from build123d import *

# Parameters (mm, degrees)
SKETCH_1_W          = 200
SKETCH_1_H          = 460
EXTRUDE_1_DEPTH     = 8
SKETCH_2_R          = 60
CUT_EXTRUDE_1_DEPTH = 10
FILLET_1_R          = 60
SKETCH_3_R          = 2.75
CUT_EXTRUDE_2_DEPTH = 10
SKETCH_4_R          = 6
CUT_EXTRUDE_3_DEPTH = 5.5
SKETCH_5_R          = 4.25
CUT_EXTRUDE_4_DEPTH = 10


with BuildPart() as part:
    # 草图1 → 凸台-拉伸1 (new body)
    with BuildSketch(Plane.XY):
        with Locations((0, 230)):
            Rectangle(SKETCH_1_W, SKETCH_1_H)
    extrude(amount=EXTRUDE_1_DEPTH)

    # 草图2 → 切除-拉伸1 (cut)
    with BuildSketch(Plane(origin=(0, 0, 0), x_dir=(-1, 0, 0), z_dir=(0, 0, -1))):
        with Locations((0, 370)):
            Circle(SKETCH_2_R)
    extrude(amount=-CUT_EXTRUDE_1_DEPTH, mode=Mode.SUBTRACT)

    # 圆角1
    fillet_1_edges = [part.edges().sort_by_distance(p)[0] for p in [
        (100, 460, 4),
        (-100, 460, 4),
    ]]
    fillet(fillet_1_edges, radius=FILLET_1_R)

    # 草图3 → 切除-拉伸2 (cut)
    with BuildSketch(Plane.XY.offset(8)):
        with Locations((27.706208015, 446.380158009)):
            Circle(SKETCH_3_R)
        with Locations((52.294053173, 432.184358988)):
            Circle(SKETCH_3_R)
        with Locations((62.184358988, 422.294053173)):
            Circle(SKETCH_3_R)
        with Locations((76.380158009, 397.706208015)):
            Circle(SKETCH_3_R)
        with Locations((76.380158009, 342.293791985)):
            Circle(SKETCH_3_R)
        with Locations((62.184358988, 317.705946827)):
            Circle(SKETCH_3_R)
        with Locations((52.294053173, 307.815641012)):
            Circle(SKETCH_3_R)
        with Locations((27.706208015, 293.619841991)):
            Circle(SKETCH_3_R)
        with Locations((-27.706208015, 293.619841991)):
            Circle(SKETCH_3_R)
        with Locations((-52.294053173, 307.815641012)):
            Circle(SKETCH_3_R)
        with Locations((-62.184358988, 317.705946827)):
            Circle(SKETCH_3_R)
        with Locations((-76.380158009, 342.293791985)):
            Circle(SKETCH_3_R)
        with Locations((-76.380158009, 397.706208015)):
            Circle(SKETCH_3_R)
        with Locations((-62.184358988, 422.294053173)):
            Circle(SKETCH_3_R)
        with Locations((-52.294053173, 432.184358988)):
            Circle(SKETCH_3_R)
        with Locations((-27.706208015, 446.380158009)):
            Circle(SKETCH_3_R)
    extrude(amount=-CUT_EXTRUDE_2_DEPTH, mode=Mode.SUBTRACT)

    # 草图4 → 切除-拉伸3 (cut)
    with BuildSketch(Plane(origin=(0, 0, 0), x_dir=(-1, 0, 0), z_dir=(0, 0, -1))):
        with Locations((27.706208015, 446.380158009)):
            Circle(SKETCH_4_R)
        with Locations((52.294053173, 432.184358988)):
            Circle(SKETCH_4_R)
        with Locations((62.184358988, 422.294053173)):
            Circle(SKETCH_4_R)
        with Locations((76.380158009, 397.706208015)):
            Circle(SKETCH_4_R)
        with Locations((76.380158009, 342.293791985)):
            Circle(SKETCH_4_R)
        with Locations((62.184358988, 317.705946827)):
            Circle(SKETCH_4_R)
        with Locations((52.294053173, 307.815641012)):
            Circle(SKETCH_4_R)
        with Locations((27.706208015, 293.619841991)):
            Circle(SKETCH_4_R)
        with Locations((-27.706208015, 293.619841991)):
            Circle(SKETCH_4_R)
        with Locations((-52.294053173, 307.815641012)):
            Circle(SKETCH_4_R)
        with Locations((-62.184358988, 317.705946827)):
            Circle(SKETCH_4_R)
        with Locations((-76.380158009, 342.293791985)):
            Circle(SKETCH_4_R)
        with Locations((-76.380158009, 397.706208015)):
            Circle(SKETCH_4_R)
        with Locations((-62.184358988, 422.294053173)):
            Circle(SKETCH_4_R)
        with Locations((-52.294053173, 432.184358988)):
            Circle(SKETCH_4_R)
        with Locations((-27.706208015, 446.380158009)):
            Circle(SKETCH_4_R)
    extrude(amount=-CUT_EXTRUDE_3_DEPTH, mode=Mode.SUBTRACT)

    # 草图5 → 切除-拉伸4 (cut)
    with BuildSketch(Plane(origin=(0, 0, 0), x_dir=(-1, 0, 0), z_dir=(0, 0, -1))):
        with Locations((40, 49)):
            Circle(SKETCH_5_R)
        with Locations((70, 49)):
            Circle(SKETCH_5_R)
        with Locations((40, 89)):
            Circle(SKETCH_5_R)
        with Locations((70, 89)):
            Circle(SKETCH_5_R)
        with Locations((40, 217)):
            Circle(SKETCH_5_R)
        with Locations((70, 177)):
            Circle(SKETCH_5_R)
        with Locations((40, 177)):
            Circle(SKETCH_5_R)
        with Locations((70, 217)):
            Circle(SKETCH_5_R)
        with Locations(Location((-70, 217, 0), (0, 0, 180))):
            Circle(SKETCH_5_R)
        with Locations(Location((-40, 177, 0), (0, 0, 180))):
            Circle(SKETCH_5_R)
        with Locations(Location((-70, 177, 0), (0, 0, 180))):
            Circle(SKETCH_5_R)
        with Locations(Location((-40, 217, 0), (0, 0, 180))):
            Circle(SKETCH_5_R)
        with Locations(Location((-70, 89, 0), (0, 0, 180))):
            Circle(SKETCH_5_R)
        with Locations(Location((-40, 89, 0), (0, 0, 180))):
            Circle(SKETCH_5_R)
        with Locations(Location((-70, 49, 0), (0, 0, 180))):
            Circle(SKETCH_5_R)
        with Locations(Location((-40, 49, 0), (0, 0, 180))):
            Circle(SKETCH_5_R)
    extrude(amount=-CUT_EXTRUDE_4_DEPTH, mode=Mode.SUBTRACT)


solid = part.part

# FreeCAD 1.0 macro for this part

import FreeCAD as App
import Part
import Sketcher

V = App.Vector
Q = App.Units.Quantity


def edges_at(feature, points):
    """Names of the edges that pass closest to the given points."""
    edges = feature.Shape.Edges
    near = lambda p: min(range(len(edges)), key=lambda i: edges[i].distToShape(Part.Vertex(*p))[0])
    return sorted({f"Edge{near(p) + 1}" for p in points})

doc = App.newDocument("Part")
body = doc.addObject("PartDesign::Body", "Body")

# Sketch on XY plane
sketch1 = body.newObject("Sketcher::SketchObject", "Sketch")
sketch1.AttachmentSupport = (doc.getObject("XY_Plane"), [""])
sketch1.MapMode = "FlatFace"
sketch1.addGeometry([
    Part.LineSegment(V(-100, 460, 0), V(-100, 0, 0)),
    Part.LineSegment(V(-100, 0, 0), V(100, 0, 0)),
    Part.LineSegment(V(100, 0, 0), V(100, 460, 0)),
    Part.LineSegment(V(100, 460, 0), V(-100, 460, 0)),
], False)
sketch1.addConstraint([
    Sketcher.Constraint("Coincident", 0, 2, 1, 1),
    Sketcher.Constraint("Coincident", 1, 2, 2, 1),
    Sketcher.Constraint("Coincident", 2, 2, 3, 1),
    Sketcher.Constraint("Coincident", 3, 2, 0, 1),
    Sketcher.Constraint("Vertical", 0),
    Sketcher.Constraint("Horizontal", 1),
    Sketcher.Constraint("Vertical", 2),
    Sketcher.Constraint("Horizontal", 3),
    Sketcher.Constraint("Symmetric", 0, 2, 1, 2, -1, 1),
    Sketcher.Constraint("DistanceX", 1, 1, 1, 2, Q("200 mm")),
    Sketcher.Constraint("DistanceY", 0, 2, 0, 1, Q("460 mm")),
])
pad1 = body.newObject("PartDesign::Pad", "Pad")
pad1.Profile = sketch1
pad1.Length = 8

# Sketch on XY plane
sketch2 = body.newObject("Sketcher::SketchObject", "Sketch001")
sketch2.AttachmentSupport = (doc.getObject("XY_Plane"), [""])
sketch2.MapMode = "FlatFace"
sketch2.addGeometry(Part.Circle(V(0, 370, 0), V(0, 0, 1), 60), False)
sketch2.addConstraint([
    Sketcher.Constraint("PointOnObject", 0, 3, -2),
    Sketcher.Constraint("Diameter", 0, Q("120 mm")),
    Sketcher.Constraint("DistanceY", -1, 1, 0, 3, Q("370 mm")),
])
pocket1 = body.newObject("PartDesign::Pocket", "Pocket")
pocket1.Profile = sketch2
pocket1.Length = 10
pocket1.Reversed = True
doc.recompute()

fillet = body.newObject("PartDesign::Fillet", "Fillet")
fillet.Base = (pocket1, edges_at(pocket1, [(100, 460, 4), (-100, 460, 4)]))
fillet.Radius = 60

# Sketch on XY plane
sketch3 = body.newObject("Sketcher::SketchObject", "Sketch002")
sketch3.AttachmentSupport = (doc.getObject("XY_Plane"), [""])
sketch3.MapMode = "FlatFace"
sketch3.AttachmentOffset = App.Placement(V(0, 0, 8), App.Rotation())
sketch3.addGeometry([
    Part.Circle(V(27.706208, 446.380158, 0), V(0, 0, 1), 2.75),  # 0
    Part.Circle(V(52.294053, 432.184359, 0), V(0, 0, 1), 2.75),  # 1
    Part.Circle(V(62.184359, 422.294053, 0), V(0, 0, 1), 2.75),  # 2
    Part.Circle(V(76.380158, 397.706208, 0), V(0, 0, 1), 2.75),  # 3
    Part.Circle(V(76.380158, 342.293792, 0), V(0, 0, 1), 2.75),  # 4
    Part.Circle(V(62.184359, 317.705947, 0), V(0, 0, 1), 2.75),  # 5
    Part.Circle(V(52.294053, 307.815641, 0), V(0, 0, 1), 2.75),  # 6
    Part.Circle(V(27.706208, 293.619842, 0), V(0, 0, 1), 2.75),  # 7
    Part.Circle(V(-27.706208, 293.619842, 0), V(0, 0, 1), 2.75),  # 8
    Part.Circle(V(-52.294053, 307.815641, 0), V(0, 0, 1), 2.75),  # 9
    Part.Circle(V(-62.184359, 317.705947, 0), V(0, 0, 1), 2.75),  # 10
    Part.Circle(V(-76.380158, 342.293792, 0), V(0, 0, 1), 2.75),  # 11
    Part.Circle(V(-76.380158, 397.706208, 0), V(0, 0, 1), 2.75),  # 12
    Part.Circle(V(-62.184359, 422.294053, 0), V(0, 0, 1), 2.75),  # 13
    Part.Circle(V(-52.294053, 432.184359, 0), V(0, 0, 1), 2.75),  # 14
    Part.Circle(V(-27.706208, 446.380158, 0), V(0, 0, 1), 2.75),  # 15
], False)
sketch3.addConstraint([
    Sketcher.Constraint("Equal", 0, 1),
    Sketcher.Constraint("Equal", 1, 2),
    Sketcher.Constraint("Equal", 2, 3),
    Sketcher.Constraint("Equal", 3, 4),
    Sketcher.Constraint("Equal", 4, 5),
    Sketcher.Constraint("Equal", 5, 6),
    Sketcher.Constraint("Equal", 6, 7),
    Sketcher.Constraint("Equal", 7, 8),
    Sketcher.Constraint("Equal", 8, 9),
    Sketcher.Constraint("Equal", 9, 10),
    Sketcher.Constraint("Equal", 10, 11),
    Sketcher.Constraint("Equal", 11, 12),
    Sketcher.Constraint("Equal", 12, 13),
    Sketcher.Constraint("Equal", 13, 14),
    Sketcher.Constraint("Equal", 14, 15),
    Sketcher.Constraint("Symmetric", 7, 3, 8, 3, -2),
    Sketcher.Constraint("Symmetric", 6, 3, 9, 3, -2),
    Sketcher.Constraint("Symmetric", 5, 3, 10, 3, -2),
    Sketcher.Constraint("Symmetric", 4, 3, 11, 3, -2),
    Sketcher.Constraint("Symmetric", 3, 3, 12, 3, -2),
    Sketcher.Constraint("Symmetric", 2, 3, 13, 3, -2),
    Sketcher.Constraint("Symmetric", 1, 3, 14, 3, -2),
    Sketcher.Constraint("Symmetric", 0, 3, 15, 3, -2),
    Sketcher.Constraint("Vertical", 3, 3, 4, 3),
    Sketcher.Constraint("Vertical", 2, 3, 5, 3),
    Sketcher.Constraint("Vertical", 1, 3, 6, 3),
    Sketcher.Constraint("Vertical", 0, 3, 7, 3),
    Sketcher.Constraint("Diameter", 0, Q("5.5 mm")),
    Sketcher.Constraint("DistanceY", 1, 3, 0, 3, Q("14.195799 mm")),
    Sketcher.Constraint("DistanceX", 2, 3, 3, 3, Q("14.195799 mm")),
    Sketcher.Constraint("DistanceY", 7, 3, 6, 3, Q("14.195799 mm")),
    Sketcher.Constraint("DistanceX", -1, 1, 0, 3, Q("27.706208 mm")),
    Sketcher.Constraint("DistanceY", -1, 1, 0, 3, Q("446.380158 mm")),
    Sketcher.Constraint("DistanceX", -1, 1, 2, 3, Q("62.184359 mm")),
    Sketcher.Constraint("DistanceY", -1, 1, 3, 3, Q("397.706208 mm")),
    Sketcher.Constraint("DistanceY", -1, 1, 4, 3, Q("342.293792 mm")),
    Sketcher.Constraint("DistanceY", -1, 1, 6, 3, Q("307.815641 mm")),
    Sketcher.Constraint("DistanceY", 4, 3, 2, 3, Q("80.000261 mm")),
    Sketcher.Constraint("DistanceY", 5, 3, 3, 3, Q("80.000261 mm")),
    Sketcher.Constraint("DistanceX", 8, 3, 6, 3, Q("80.000261 mm")),
])
pocket2 = body.newObject("PartDesign::Pocket", "Pocket001")
pocket2.Profile = sketch3
pocket2.Length = 10

# Sketch on XY plane
sketch4 = body.newObject("Sketcher::SketchObject", "Sketch003")
sketch4.AttachmentSupport = (doc.getObject("XY_Plane"), [""])
sketch4.MapMode = "FlatFace"
sketch4.addGeometry([
    Part.Circle(V(-27.706208, 446.380158, 0), V(0, 0, 1), 6),  # 0
    Part.Circle(V(-52.294053, 432.184359, 0), V(0, 0, 1), 6),  # 1
    Part.Circle(V(-62.184359, 422.294053, 0), V(0, 0, 1), 6),  # 2
    Part.Circle(V(-76.380158, 397.706208, 0), V(0, 0, 1), 6),  # 3
    Part.Circle(V(-76.380158, 342.293792, 0), V(0, 0, 1), 6),  # 4
    Part.Circle(V(-62.184359, 317.705947, 0), V(0, 0, 1), 6),  # 5
    Part.Circle(V(-52.294053, 307.815641, 0), V(0, 0, 1), 6),  # 6
    Part.Circle(V(-27.706208, 293.619842, 0), V(0, 0, 1), 6),  # 7
    Part.Circle(V(27.706208, 293.619842, 0), V(0, 0, 1), 6),  # 8
    Part.Circle(V(52.294053, 307.815641, 0), V(0, 0, 1), 6),  # 9
    Part.Circle(V(62.184359, 317.705947, 0), V(0, 0, 1), 6),  # 10
    Part.Circle(V(76.380158, 342.293792, 0), V(0, 0, 1), 6),  # 11
    Part.Circle(V(76.380158, 397.706208, 0), V(0, 0, 1), 6),  # 12
    Part.Circle(V(62.184359, 422.294053, 0), V(0, 0, 1), 6),  # 13
    Part.Circle(V(52.294053, 432.184359, 0), V(0, 0, 1), 6),  # 14
    Part.Circle(V(27.706208, 446.380158, 0), V(0, 0, 1), 6),  # 15
], False)
sketch4.addConstraint([
    Sketcher.Constraint("Equal", 0, 1),
    Sketcher.Constraint("Equal", 1, 2),
    Sketcher.Constraint("Equal", 2, 3),
    Sketcher.Constraint("Equal", 3, 4),
    Sketcher.Constraint("Equal", 4, 5),
    Sketcher.Constraint("Equal", 5, 6),
    Sketcher.Constraint("Equal", 6, 7),
    Sketcher.Constraint("Equal", 7, 8),
    Sketcher.Constraint("Equal", 8, 9),
    Sketcher.Constraint("Equal", 9, 10),
    Sketcher.Constraint("Equal", 10, 11),
    Sketcher.Constraint("Equal", 11, 12),
    Sketcher.Constraint("Equal", 12, 13),
    Sketcher.Constraint("Equal", 13, 14),
    Sketcher.Constraint("Equal", 14, 15),
    Sketcher.Constraint("Symmetric", 7, 3, 8, 3, -2),
    Sketcher.Constraint("Symmetric", 6, 3, 9, 3, -2),
    Sketcher.Constraint("Symmetric", 5, 3, 10, 3, -2),
    Sketcher.Constraint("Symmetric", 4, 3, 11, 3, -2),
    Sketcher.Constraint("Symmetric", 3, 3, 12, 3, -2),
    Sketcher.Constraint("Symmetric", 2, 3, 13, 3, -2),
    Sketcher.Constraint("Symmetric", 1, 3, 14, 3, -2),
    Sketcher.Constraint("Symmetric", 0, 3, 15, 3, -2),
    Sketcher.Constraint("Vertical", 3, 3, 4, 3),
    Sketcher.Constraint("Vertical", 2, 3, 5, 3),
    Sketcher.Constraint("Vertical", 1, 3, 6, 3),
    Sketcher.Constraint("Vertical", 0, 3, 7, 3),
    Sketcher.Constraint("Diameter", 0, Q("12 mm")),
    Sketcher.Constraint("DistanceY", 1, 3, 0, 3, Q("14.195799 mm")),
    Sketcher.Constraint("DistanceX", 3, 3, 2, 3, Q("14.195799 mm")),
    Sketcher.Constraint("DistanceY", 7, 3, 6, 3, Q("14.195799 mm")),
    Sketcher.Constraint("DistanceX", 0, 3, -1, 1, Q("27.706208 mm")),
    Sketcher.Constraint("DistanceY", -1, 1, 0, 3, Q("446.380158 mm")),
    Sketcher.Constraint("DistanceX", 2, 3, -1, 1, Q("62.184359 mm")),
    Sketcher.Constraint("DistanceY", -1, 1, 3, 3, Q("397.706208 mm")),
    Sketcher.Constraint("DistanceY", -1, 1, 4, 3, Q("342.293792 mm")),
    Sketcher.Constraint("DistanceY", -1, 1, 6, 3, Q("307.815641 mm")),
    Sketcher.Constraint("DistanceY", 4, 3, 2, 3, Q("80.000261 mm")),
    Sketcher.Constraint("DistanceY", 5, 3, 3, 3, Q("80.000261 mm")),
    Sketcher.Constraint("DistanceX", 6, 3, 8, 3, Q("80.000261 mm")),
])
pocket3 = body.newObject("PartDesign::Pocket", "Pocket002")
pocket3.Profile = sketch4
pocket3.Length = 5.5
pocket3.Reversed = True

# Sketch on XY plane
sketch5 = body.newObject("Sketcher::SketchObject", "Sketch004")
sketch5.AttachmentSupport = (doc.getObject("XY_Plane"), [""])
sketch5.MapMode = "FlatFace"
sketch5.addGeometry([
    Part.Circle(V(-40, 49, 0), V(0, 0, 1), 4.25),  # 0
    Part.Circle(V(-70, 49, 0), V(0, 0, 1), 4.25),  # 1
    Part.Circle(V(-40, 89, 0), V(0, 0, 1), 4.25),  # 2
    Part.Circle(V(-70, 89, 0), V(0, 0, 1), 4.25),  # 3
    Part.Circle(V(-40, 217, 0), V(0, 0, 1), 4.25),  # 4
    Part.Circle(V(-70, 177, 0), V(0, 0, 1), 4.25),  # 5
    Part.Circle(V(-40, 177, 0), V(0, 0, 1), 4.25),  # 6
    Part.Circle(V(-70, 217, 0), V(0, 0, 1), 4.25),  # 7
    Part.Circle(V(70, 217, 0), V(0, 0, 1), 4.25),  # 8
    Part.Circle(V(40, 177, 0), V(0, 0, 1), 4.25),  # 9
    Part.Circle(V(70, 177, 0), V(0, 0, 1), 4.25),  # 10
    Part.Circle(V(40, 217, 0), V(0, 0, 1), 4.25),  # 11
    Part.Circle(V(70, 89, 0), V(0, 0, 1), 4.25),  # 12
    Part.Circle(V(40, 89, 0), V(0, 0, 1), 4.25),  # 13
    Part.Circle(V(70, 49, 0), V(0, 0, 1), 4.25),  # 14
    Part.Circle(V(40, 49, 0), V(0, 0, 1), 4.25),  # 15
], False)
sketch5.addConstraint([
    Sketcher.Constraint("Equal", 0, 1),
    Sketcher.Constraint("Equal", 1, 2),
    Sketcher.Constraint("Equal", 2, 3),
    Sketcher.Constraint("Equal", 3, 4),
    Sketcher.Constraint("Equal", 4, 5),
    Sketcher.Constraint("Equal", 5, 6),
    Sketcher.Constraint("Equal", 6, 7),
    Sketcher.Constraint("Equal", 7, 8),
    Sketcher.Constraint("Equal", 8, 9),
    Sketcher.Constraint("Equal", 9, 10),
    Sketcher.Constraint("Equal", 10, 11),
    Sketcher.Constraint("Equal", 11, 12),
    Sketcher.Constraint("Equal", 12, 13),
    Sketcher.Constraint("Equal", 13, 14),
    Sketcher.Constraint("Equal", 14, 15),
    Sketcher.Constraint("Symmetric", 7, 3, 8, 3, -2),
    Sketcher.Constraint("Symmetric", 6, 3, 9, 3, -2),
    Sketcher.Constraint("Symmetric", 5, 3, 10, 3, -2),
    Sketcher.Constraint("Symmetric", 4, 3, 11, 3, -2),
    Sketcher.Constraint("Symmetric", 3, 3, 12, 3, -2),
    Sketcher.Constraint("Symmetric", 2, 3, 13, 3, -2),
    Sketcher.Constraint("Symmetric", 1, 3, 14, 3, -2),
    Sketcher.Constraint("Symmetric", 0, 3, 15, 3, -2),
    Sketcher.Constraint("Horizontal", 0, 3, 1, 3),
    Sketcher.Constraint("Horizontal", 2, 3, 3, 3),
    Sketcher.Constraint("Horizontal", 5, 3, 6, 3),
    Sketcher.Constraint("Horizontal", 4, 3, 7, 3),
    Sketcher.Constraint("Vertical", 0, 3, 2, 3),
    Sketcher.Constraint("Vertical", 1, 3, 3, 3),
    Sketcher.Constraint("Vertical", 2, 3, 4, 3),
    Sketcher.Constraint("Vertical", 3, 3, 5, 3),
    Sketcher.Constraint("Vertical", 4, 3, 6, 3),
    Sketcher.Constraint("Vertical", 5, 3, 7, 3),
    Sketcher.Constraint("Diameter", 0, Q("8.5 mm")),
    Sketcher.Constraint("DistanceX", 0, 3, -1, 1, Q("40 mm")),
    Sketcher.Constraint("DistanceY", -1, 1, 0, 3, Q("49 mm")),
    Sketcher.Constraint("DistanceX", 1, 3, -1, 1, Q("70 mm")),
    Sketcher.Constraint("DistanceY", -1, 1, 2, 3, Q("89 mm")),
    Sketcher.Constraint("DistanceY", -1, 1, 4, 3, Q("217 mm")),
    Sketcher.Constraint("DistanceY", -1, 1, 5, 3, Q("177 mm")),
])
pocket4 = body.newObject("PartDesign::Pocket", "Pocket003")
pocket4.Profile = sketch5
pocket4.Length = 10
pocket4.Reversed = True

doc.recompute()
